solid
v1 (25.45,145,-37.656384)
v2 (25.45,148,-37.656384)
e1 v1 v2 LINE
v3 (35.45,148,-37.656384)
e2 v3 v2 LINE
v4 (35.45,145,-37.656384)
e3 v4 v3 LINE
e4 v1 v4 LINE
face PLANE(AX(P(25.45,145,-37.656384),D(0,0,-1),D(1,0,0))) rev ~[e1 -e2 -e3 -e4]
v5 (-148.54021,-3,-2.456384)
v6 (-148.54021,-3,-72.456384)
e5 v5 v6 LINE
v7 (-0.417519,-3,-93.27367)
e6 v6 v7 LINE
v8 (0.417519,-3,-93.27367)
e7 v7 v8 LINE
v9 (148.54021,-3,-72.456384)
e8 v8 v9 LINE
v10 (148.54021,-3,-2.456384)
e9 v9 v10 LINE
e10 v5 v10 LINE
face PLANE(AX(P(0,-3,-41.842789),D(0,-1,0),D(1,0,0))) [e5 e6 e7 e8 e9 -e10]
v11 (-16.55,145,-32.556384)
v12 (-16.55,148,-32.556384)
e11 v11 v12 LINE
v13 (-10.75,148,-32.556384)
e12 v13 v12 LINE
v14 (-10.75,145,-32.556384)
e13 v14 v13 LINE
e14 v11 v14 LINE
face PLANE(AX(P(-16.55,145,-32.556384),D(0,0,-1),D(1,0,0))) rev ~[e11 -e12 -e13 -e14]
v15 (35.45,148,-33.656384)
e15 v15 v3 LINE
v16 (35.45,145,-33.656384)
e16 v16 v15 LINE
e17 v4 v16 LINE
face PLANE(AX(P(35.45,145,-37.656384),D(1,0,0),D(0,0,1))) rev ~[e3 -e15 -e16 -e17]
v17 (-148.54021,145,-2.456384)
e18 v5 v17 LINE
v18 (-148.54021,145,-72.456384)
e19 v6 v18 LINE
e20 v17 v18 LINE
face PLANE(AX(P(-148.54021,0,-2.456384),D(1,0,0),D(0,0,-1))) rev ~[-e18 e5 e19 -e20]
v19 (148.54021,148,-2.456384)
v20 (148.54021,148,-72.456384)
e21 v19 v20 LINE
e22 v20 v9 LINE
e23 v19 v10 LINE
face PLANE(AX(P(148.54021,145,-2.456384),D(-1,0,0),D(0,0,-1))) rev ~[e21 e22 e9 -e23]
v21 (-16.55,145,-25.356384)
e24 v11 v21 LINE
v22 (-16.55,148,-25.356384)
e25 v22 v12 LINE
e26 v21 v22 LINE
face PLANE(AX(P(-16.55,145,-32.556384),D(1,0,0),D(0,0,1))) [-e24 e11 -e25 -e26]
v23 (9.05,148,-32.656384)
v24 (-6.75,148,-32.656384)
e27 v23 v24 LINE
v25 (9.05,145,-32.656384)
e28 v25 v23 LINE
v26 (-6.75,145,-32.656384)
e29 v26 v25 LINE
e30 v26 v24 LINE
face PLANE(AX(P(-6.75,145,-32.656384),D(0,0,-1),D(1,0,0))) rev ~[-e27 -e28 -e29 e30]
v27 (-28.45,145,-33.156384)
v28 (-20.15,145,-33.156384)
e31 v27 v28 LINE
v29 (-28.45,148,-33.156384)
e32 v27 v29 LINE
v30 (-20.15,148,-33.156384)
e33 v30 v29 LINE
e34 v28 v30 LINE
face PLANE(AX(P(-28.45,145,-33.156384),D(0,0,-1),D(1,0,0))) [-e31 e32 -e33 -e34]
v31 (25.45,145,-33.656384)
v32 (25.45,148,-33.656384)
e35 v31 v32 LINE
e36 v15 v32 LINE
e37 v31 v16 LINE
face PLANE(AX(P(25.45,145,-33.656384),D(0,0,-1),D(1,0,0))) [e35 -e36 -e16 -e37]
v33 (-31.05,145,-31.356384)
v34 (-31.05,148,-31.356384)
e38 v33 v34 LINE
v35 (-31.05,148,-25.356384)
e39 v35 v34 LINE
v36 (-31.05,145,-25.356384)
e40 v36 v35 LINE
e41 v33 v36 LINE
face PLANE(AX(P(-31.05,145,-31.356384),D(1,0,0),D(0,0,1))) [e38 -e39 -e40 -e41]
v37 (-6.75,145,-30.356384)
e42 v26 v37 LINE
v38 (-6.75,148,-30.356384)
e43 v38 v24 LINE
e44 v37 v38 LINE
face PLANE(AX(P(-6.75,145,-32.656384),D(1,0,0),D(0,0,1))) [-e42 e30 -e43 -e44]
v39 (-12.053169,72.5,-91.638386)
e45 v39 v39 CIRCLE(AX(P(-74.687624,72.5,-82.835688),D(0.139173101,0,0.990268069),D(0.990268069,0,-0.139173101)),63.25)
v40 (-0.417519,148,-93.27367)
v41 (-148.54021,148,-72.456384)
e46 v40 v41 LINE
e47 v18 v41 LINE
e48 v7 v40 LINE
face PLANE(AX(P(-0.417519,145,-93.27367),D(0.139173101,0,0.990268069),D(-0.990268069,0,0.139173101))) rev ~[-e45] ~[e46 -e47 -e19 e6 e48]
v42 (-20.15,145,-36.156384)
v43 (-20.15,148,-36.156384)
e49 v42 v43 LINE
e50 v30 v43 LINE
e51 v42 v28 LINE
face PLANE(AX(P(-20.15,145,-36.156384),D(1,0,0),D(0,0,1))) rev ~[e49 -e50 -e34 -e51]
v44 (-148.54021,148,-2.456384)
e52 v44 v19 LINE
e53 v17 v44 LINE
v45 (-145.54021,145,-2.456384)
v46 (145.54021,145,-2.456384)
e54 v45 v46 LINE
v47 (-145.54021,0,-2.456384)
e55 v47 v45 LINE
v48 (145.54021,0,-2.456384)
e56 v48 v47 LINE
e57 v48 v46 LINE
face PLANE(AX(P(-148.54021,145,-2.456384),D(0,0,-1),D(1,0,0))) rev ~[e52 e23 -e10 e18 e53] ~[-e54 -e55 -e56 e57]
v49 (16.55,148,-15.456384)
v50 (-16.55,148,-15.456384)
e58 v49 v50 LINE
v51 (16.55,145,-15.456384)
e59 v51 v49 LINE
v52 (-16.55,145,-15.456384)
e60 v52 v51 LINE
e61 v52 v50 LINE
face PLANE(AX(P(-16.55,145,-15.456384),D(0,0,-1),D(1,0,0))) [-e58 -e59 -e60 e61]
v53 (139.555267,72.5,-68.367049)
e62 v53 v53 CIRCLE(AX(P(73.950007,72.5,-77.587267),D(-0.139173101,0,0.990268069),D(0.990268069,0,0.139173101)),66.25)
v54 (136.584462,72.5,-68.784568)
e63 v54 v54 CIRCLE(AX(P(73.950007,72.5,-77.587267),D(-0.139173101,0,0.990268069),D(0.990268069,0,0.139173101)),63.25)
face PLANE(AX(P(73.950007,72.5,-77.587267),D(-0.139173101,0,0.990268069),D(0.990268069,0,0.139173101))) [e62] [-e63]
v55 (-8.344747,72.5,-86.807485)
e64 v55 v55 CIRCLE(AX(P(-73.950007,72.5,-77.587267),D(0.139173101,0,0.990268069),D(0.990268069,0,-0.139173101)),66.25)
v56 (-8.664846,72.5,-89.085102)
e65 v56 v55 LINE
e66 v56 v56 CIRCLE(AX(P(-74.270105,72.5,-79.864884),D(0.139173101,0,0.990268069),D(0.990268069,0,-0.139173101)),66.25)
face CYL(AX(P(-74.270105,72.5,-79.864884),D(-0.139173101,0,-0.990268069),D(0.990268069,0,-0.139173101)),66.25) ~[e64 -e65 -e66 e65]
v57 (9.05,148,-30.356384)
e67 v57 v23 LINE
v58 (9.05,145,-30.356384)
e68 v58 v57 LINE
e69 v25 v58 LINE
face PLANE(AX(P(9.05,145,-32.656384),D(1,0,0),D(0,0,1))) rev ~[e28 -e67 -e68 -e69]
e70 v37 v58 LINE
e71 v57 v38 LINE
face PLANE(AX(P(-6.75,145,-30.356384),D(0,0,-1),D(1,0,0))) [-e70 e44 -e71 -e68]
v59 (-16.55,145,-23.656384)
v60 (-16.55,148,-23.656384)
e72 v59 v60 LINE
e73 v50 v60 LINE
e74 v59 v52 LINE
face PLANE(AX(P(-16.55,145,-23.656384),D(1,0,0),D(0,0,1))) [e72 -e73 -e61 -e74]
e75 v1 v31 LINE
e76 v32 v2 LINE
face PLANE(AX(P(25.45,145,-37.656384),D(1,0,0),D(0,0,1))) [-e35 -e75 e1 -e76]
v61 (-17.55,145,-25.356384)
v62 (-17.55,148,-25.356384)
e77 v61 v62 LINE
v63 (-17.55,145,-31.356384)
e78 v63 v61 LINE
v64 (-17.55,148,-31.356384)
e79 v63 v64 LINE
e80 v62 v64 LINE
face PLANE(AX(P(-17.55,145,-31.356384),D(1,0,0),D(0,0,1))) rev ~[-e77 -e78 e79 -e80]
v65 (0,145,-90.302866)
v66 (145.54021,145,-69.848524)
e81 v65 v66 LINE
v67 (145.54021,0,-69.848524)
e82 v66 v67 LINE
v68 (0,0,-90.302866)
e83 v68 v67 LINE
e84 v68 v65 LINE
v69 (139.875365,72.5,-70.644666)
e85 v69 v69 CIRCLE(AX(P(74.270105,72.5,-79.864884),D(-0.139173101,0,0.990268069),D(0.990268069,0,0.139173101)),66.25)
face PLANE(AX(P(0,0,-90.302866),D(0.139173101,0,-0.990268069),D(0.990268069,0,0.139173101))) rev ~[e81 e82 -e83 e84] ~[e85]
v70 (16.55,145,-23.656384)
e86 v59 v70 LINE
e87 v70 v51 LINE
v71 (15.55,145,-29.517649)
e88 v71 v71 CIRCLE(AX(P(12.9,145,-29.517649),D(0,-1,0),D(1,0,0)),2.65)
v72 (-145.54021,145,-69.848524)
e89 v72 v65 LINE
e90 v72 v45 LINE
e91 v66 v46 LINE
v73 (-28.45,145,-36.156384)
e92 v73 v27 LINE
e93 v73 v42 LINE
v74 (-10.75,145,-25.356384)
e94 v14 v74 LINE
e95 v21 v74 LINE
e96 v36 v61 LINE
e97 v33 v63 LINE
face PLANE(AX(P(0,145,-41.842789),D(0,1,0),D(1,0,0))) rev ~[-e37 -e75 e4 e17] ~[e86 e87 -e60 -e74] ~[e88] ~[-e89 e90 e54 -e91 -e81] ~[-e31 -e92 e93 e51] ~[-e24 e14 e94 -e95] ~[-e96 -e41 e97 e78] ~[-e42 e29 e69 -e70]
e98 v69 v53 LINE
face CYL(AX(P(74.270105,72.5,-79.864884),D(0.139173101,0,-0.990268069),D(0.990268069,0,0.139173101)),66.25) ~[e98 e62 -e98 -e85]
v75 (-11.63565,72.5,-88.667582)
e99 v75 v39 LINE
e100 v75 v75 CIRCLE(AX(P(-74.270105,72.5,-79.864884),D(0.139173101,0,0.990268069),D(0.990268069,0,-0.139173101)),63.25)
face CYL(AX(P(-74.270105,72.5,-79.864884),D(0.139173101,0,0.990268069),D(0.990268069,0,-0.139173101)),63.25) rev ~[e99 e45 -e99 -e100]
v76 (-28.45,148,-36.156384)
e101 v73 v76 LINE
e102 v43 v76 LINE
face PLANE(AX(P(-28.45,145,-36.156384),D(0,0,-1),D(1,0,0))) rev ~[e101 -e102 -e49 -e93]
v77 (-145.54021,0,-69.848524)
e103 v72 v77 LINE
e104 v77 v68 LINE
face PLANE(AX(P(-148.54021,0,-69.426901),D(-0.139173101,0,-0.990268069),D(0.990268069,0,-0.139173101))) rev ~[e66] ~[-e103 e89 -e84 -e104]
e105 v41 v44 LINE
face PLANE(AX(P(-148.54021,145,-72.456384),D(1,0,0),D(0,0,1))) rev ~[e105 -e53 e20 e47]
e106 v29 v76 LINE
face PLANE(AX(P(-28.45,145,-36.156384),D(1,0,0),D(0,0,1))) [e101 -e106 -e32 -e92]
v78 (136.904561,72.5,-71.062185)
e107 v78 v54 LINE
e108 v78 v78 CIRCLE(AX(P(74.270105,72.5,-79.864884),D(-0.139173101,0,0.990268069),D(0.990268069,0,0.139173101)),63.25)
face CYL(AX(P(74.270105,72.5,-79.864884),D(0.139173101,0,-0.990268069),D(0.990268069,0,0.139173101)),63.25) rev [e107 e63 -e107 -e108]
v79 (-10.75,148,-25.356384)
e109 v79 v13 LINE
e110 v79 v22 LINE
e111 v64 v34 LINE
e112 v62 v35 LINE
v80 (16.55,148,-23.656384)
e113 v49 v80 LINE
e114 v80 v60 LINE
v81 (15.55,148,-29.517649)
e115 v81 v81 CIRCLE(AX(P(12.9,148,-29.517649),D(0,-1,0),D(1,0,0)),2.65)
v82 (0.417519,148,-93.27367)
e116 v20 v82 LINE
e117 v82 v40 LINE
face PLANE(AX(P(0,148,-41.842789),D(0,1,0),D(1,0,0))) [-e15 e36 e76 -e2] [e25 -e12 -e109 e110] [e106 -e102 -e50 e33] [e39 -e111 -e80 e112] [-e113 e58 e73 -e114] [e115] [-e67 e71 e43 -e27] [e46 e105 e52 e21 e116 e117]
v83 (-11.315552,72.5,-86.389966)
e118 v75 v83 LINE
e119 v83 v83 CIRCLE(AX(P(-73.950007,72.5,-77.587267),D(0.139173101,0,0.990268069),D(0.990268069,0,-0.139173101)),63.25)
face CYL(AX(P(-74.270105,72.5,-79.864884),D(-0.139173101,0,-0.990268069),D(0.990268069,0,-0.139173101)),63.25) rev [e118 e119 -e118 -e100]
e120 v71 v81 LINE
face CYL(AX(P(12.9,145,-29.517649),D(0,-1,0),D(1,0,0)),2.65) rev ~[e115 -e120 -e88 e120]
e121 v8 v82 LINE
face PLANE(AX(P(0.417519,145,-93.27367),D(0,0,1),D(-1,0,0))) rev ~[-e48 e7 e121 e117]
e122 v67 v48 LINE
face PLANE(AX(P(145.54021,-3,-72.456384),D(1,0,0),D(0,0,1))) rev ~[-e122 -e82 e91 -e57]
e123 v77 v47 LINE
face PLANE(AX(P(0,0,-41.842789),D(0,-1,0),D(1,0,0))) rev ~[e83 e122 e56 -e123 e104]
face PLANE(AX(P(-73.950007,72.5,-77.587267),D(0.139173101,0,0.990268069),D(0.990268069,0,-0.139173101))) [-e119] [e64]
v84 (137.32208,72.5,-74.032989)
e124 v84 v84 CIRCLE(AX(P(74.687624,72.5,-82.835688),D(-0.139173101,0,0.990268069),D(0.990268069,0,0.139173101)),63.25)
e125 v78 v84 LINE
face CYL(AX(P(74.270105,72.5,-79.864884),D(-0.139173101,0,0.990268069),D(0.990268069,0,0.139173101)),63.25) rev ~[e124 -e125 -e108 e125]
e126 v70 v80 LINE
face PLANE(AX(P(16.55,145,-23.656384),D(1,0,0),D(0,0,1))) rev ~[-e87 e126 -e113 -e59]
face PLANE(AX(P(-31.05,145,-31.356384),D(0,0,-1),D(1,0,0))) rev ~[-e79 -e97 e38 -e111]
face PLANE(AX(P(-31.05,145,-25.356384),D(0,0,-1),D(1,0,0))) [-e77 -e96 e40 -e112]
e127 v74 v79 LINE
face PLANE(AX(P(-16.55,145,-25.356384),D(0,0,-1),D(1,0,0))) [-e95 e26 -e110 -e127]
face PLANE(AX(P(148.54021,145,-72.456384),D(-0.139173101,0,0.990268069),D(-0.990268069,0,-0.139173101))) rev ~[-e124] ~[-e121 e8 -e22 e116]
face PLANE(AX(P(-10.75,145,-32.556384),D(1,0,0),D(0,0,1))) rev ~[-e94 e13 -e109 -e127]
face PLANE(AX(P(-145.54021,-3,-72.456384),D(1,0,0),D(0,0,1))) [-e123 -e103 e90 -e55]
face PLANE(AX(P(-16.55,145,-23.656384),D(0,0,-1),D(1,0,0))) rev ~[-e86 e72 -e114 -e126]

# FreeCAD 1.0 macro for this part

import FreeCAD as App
import Part
import Sketcher
from FreeCAD import Vector
Q = App.Units.Quantity


def add_polygon(sketch, points):
    """Adds a closed chain of lines whose ends are joined by coincident constraints."""
    first, n = sketch.GeometryCount, len(points)
    for a, b in zip(points, points[1:] + points[:1]):
        sketch.addGeometry(Part.LineSegment(App.Vector(*a, 0), App.Vector(*b, 0)), False)
    for i in range(n):
        sketch.addConstraint(Sketcher.Constraint("Coincident", first + i, 2, first + (i + 1) % n, 1))

doc = App.newDocument("Part")
body = doc.addObject("PartDesign::Body", "Body")

sketch1 = body.newObject("Sketcher::SketchObject", "Sketch")
sketch1.AttachmentSupport = (doc.getObject("XZ_Plane"), [""])
sketch1.MapMode = "FlatFace"
add_polygon(sketch1, [(0, -90.302866), (148.54021, -69.426901), (148.54021, -72.456384), (0.417519, -93.27367), (-0.417519, -93.27367), (-148.54021, -72.456384), (-148.54021, -69.426901)])
sketch1.addConstraint([
    Sketcher.Constraint("Vertical", 1),
    Sketcher.Constraint("Horizontal", 3),
    Sketcher.Constraint("Vertical", 5),
    Sketcher.Constraint("Symmetric", 1, 2, 4, 2, -2),
    Sketcher.Constraint("PointOnObject", 6, 2, -2),
    Sketcher.Constraint("Parallel", 0, 2),
    Sketcher.Constraint("Parallel", 4, 6),
    Sketcher.Constraint("Horizontal", 0, 2, 5, 2),
    Sketcher.Constraint("Angle", 0, Q("8 deg")),
    Sketcher.Constraint("Distance", 0, Q("150 mm")),
    Sketcher.Constraint("DistanceX", 3, 2, 3, 1, Q("0.835039 mm")),
    Sketcher.Constraint("DistanceY", 0, 2, -1, 1, Q("69.426901 mm")),
    Sketcher.Constraint("DistanceY", 1, 2, 1, 1, Q("3.029483 mm")),
])
pad1 = body.newObject("PartDesign::Pad", "Pad")
pad1.Profile = sketch1
pad1.Length = 145
pad1.Reversed = True

sketch2 = body.newObject("Sketcher::SketchObject", "Sketch001")
sketch2.Placement = App.Placement(Vector(12.445422, 0, -88.553776), App.Rotation(Vector(0.990268069, 0, 0.139173101), Vector(0, 1.000000001, 0), Vector(-0.139173101, 0, 0.990268069), "ZXY"))
sketch2.addGeometry([
    Part.Circle(Vector(62.43227, 72.5, 0), Vector(0, 0, 1), 66.25),
    Part.Circle(Vector(62.43227, 72.5, 0), Vector(0, 0, 1), 63.25),
], False)
sketch2.addConstraint([
    Sketcher.Constraint("Coincident", 1, 3, 0, 3),
    Sketcher.Constraint("Diameter", 0, Q("132.5 mm")),
    Sketcher.Constraint("Diameter", 1, Q("126.5 mm")),
    Sketcher.Constraint("DistanceY", -1, 1, 0, 3, Q("72.5 mm")),
    Sketcher.Constraint("DistanceX", -1, 1, 0, 3, Q("62.43227 mm")),
])
pad2 = body.newObject("PartDesign::Pad", "Pad001")
pad2.Profile = sketch2
pad2.Length = 2.3

sketch3 = body.newObject("Sketcher::SketchObject", "Sketch002")
sketch3.Placement = App.Placement(Vector(-12.445422, 0, -88.553776), App.Rotation(Vector(0.990268069, 0, -0.139173101), Vector(0, 1.000000001, 0), Vector(0.139173101, 0, 0.990268069), "ZXY"))
sketch3.addGeometry([
    Part.Circle(Vector(-62.43227, 72.5, 0), Vector(0, 0, 1), 66.25),
    Part.Circle(Vector(-62.43227, 72.5, 0), Vector(0, 0, 1), 63.25),
], False)
sketch3.addConstraint([
    Sketcher.Constraint("Coincident", 1, 3, 0, 3),
    Sketcher.Constraint("Diameter", 0, Q("132.5 mm")),
    Sketcher.Constraint("Diameter", 1, Q("126.5 mm")),
    Sketcher.Constraint("DistanceY", -1, 1, 0, 3, Q("72.5 mm")),
    Sketcher.Constraint("DistanceX", 0, 3, -1, 1, Q("62.43227 mm")),
])
pad3 = body.newObject("PartDesign::Pad", "Pad002")
pad3.Profile = sketch3
pad3.Length = 2.3

sketch4 = body.newObject("Sketcher::SketchObject", "Sketch003")
sketch4.Placement = App.Placement(Vector(-12.445422, 0, -88.553776), App.Rotation(Vector(0.990268069, 0, -0.139173101), Vector(0, 1.000000001, 0), Vector(0.139173101, 0, 0.990268069), "ZXY"))
sketch4.addGeometry(Part.Circle(Vector(-62.43227, 72.5, 0), Vector(0, 0, 1), 63.25), False)
sketch4.addConstraint([
    Sketcher.Constraint("Diameter", 0, Q("126.5 mm")),
    Sketcher.Constraint("DistanceY", -1, 1, 0, 3, Q("72.5 mm")),
    Sketcher.Constraint("DistanceX", 0, 3, -1, 1, Q("62.43227 mm")),
])
pocket1 = body.newObject("PartDesign::Pocket", "Pocket")
pocket1.Profile = sketch4
pocket1.Type = "ThroughAll"

sketch5 = body.newObject("Sketcher::SketchObject", "Sketch004")
sketch5.Placement = App.Placement(Vector(12.445422, 0, -88.553776), App.Rotation(Vector(0.990268069, 0, 0.139173101), Vector(0, 1.000000001, 0), Vector(-0.139173101, 0, 0.990268069), "ZXY"))
sketch5.addGeometry(Part.Circle(Vector(62.43227, 72.5, 0), Vector(0, 0, 1), 63.25), False)
sketch5.addConstraint([
    Sketcher.Constraint("Diameter", 0, Q("126.5 mm")),
    Sketcher.Constraint("DistanceY", -1, 1, 0, 3, Q("72.5 mm")),
    Sketcher.Constraint("DistanceX", -1, 1, 0, 3, Q("62.43227 mm")),
])
pocket2 = body.newObject("PartDesign::Pocket", "Pocket001")
pocket2.Profile = sketch5
pocket2.Type = "ThroughAll"

sketch6 = body.newObject("Sketcher::SketchObject", "Sketch005")
sketch6.AttachmentSupport = (doc.getObject("XZ_Plane"), [""])
sketch6.MapMode = "FlatFace"
add_polygon(sketch6, [(-148.54021, -72.456384), (-0.417519, -93.27367), (0.417519, -93.27367), (148.54021, -72.456384), (148.54021, -2.456384), (-148.54021, -2.456384)])
sketch6.addConstraint([
    Sketcher.Constraint("Horizontal", 1),
    Sketcher.Constraint("Vertical", 3),
    Sketcher.Constraint("Horizontal", 4),
    Sketcher.Constraint("Vertical", 5),
    Sketcher.Constraint("Symmetric", 2, 2, 5, 2, -2),
    Sketcher.Constraint("Equal", 0, 2),
    Sketcher.Constraint("DistanceY", 3, 1, 3, 2, Q("70 mm")),
    Sketcher.Constraint("Angle", 0, Q("-8 deg")),
    Sketcher.Constraint("DistanceX", 1, 1, 1, 2, Q("0.835039 mm")),
    Sketcher.Constraint("DistanceX", 4, 2, 4, 1, Q("297.080421 mm")),
    Sketcher.Constraint("DistanceY", 0, 2, -1, 1, Q("93.27367 mm")),
])
pad4 = body.newObject("PartDesign::Pad", "Pad003")
pad4.Profile = sketch6
pad4.Length = 3

sketch7 = body.newObject("Sketcher::SketchObject", "Sketch006")
sketch7.AttachmentSupport = (doc.getObject("XZ_Plane"), [""])
sketch7.MapMode = "FlatFace"
sketch7.AttachmentOffset = App.Placement(Vector(0, 0, 3), App.Rotation())
add_polygon(sketch7, [(-148.54021, -2.456384), (-148.54021, -72.456384), (-145.54021, -72.456384), (-145.54021, -2.456384)])
add_polygon(sketch7, [(145.54021, -2.456384), (145.54021, -72.456384), (148.54021, -72.456384), (148.54021, -2.456384)])
sketch7.addConstraint([
    Sketcher.Constraint("Vertical", 0),
    Sketcher.Constraint("Horizontal", 1),
    Sketcher.Constraint("Vertical", 2),
    Sketcher.Constraint("Horizontal", 3),
    Sketcher.Constraint("Vertical", 4),
    Sketcher.Constraint("Horizontal", 5),
    Sketcher.Constraint("Vertical", 6),
    Sketcher.Constraint("Horizontal", 7),
    Sketcher.Constraint("Symmetric", 1, 2, 4, 2, -2),
    Sketcher.Constraint("Symmetric", 3, 2, 6, 2, -2),
    Sketcher.Constraint("DistanceX", 1, 1, 1, 2, Q("3 mm")),
    Sketcher.Constraint("DistanceY", 0, 2, 0, 1, Q("70 mm")),
    Sketcher.Constraint("DistanceX", 0, 2, -1, 1, Q("148.54021 mm")),
    Sketcher.Constraint("DistanceY", 0, 2, -1, 1, Q("72.456384 mm")),
])
pad5 = body.newObject("PartDesign::Pad", "Pad004")
pad5.Profile = sketch7
pad5.Length = 148
pad5.Reversed = True

sketch8 = body.newObject("Sketcher::SketchObject", "Sketch007")
sketch8.AttachmentSupport = (doc.getObject("XZ_Plane"), [""])
sketch8.MapMode = "FlatFace"
sketch8.AttachmentOffset = App.Placement(Vector(0, 0, -145), App.Rotation())
add_polygon(sketch8, [(148.54021, -72.456384), (0.417519, -93.27367), (-0.417519, -93.27367), (-148.54021, -72.456384), (-148.54021, -2.456384), (148.54021, -2.456384)])
sketch8.addConstraint([
    Sketcher.Constraint("Horizontal", 1),
    Sketcher.Constraint("Vertical", 3),
    Sketcher.Constraint("Horizontal", 4),
    Sketcher.Constraint("Vertical", 5),
    Sketcher.Constraint("Symmetric", 2, 2, 5, 2, -2),
    Sketcher.Constraint("Equal", 0, 2),
    Sketcher.Constraint("DistanceY", 3, 1, 3, 2, Q("70 mm")),
    Sketcher.Constraint("Angle", 0, Q("-172 deg")),
    Sketcher.Constraint("DistanceX", 1, 2, 1, 1, Q("0.835039 mm")),
    Sketcher.Constraint("DistanceX", 4, 1, 4, 2, Q("297.080421 mm")),
    Sketcher.Constraint("DistanceY", 0, 2, -1, 1, Q("93.27367 mm")),
])
pad6 = body.newObject("PartDesign::Pad", "Pad005")
pad6.Profile = sketch8
pad6.Length = 3
pad6.Reversed = True

sketch9 = body.newObject("Sketcher::SketchObject", "Sketch008")
sketch9.AttachmentSupport = (doc.getObject("XZ_Plane"), [""])
sketch9.MapMode = "FlatFace"
sketch9.AttachmentOffset = App.Placement(Vector(0, 0, -145), App.Rotation())
sketch9.addGeometry(Part.Circle(Vector(12.9, -29.517649, 0), Vector(0, 0, 1), 2.65), False)
add_polygon(sketch9, [(-16.55, -15.456384), (-16.55, -23.656384), (16.55, -23.656384), (16.55, -15.456384)])
add_polygon(sketch9, [(-16.55, -25.356384), (-16.55, -32.556384), (-10.75, -32.556384), (-10.75, -25.356384)])
add_polygon(sketch9, [(-6.75, -30.356384), (-6.75, -32.656384), (9.05, -32.656384), (9.05, -30.356384)])
add_polygon(sketch9, [(-31.05, -25.356384), (-31.05, -31.356384), (-17.55, -31.356384), (-17.55, -25.356384)])
add_polygon(sketch9, [(-28.45, -33.156384), (-28.45, -36.156384), (-20.15, -36.156384), (-20.15, -33.156384)])
add_polygon(sketch9, [(25.45, -33.656384), (25.45, -37.656384), (35.45, -37.656384), (35.45, -33.656384)])
sketch9.addConstraint([
    Sketcher.Constraint("Vertical", 1),
    Sketcher.Constraint("Horizontal", 2),
    Sketcher.Constraint("Vertical", 3),
    Sketcher.Constraint("Horizontal", 4),
    Sketcher.Constraint("Vertical", 5),
    Sketcher.Constraint("Horizontal", 6),
    Sketcher.Constraint("Vertical", 7),
    Sketcher.Constraint("Horizontal", 8),
    Sketcher.Constraint("Vertical", 9),
    Sketcher.Constraint("Horizontal", 10),
    Sketcher.Constraint("Vertical", 11),
    Sketcher.Constraint("Horizontal", 12),
    Sketcher.Constraint("Vertical", 13),
    Sketcher.Constraint("Horizontal", 14),
    Sketcher.Constraint("Vertical", 15),
    Sketcher.Constraint("Horizontal", 16),
    Sketcher.Constraint("Vertical", 17),
    Sketcher.Constraint("Horizontal", 18),
    Sketcher.Constraint("Vertical", 19),
    Sketcher.Constraint("Horizontal", 20),
    Sketcher.Constraint("Vertical", 21),
    Sketcher.Constraint("Horizontal", 22),
    Sketcher.Constraint("Vertical", 23),
    Sketcher.Constraint("Horizontal", 24),
    Sketcher.Constraint("Horizontal", 8, 2, 15, 2),
    Sketcher.Constraint("Vertical", 4, 2, 5, 2),
    Sketcher.Constraint("Diameter", 0, Q("5.3 mm")),
    Sketcher.Constraint("DistanceX", 22, 1, 22, 2, Q("10 mm")),
    Sketcher.Constraint("DistanceY", 13, 2, 13, 1, Q("6 mm")),
    Sketcher.Constraint("DistanceY", 17, 2, 17, 1, Q("3 mm")),
    Sketcher.Constraint("DistanceY", 21, 2, 21, 1, Q("4 mm")),
    Sketcher.Constraint("DistanceX", 2, 1, 2, 2, Q("33.1 mm")),
    Sketcher.Constraint("DistanceX", 6, 1, 6, 2, Q("5.8 mm")),
    Sketcher.Constraint("DistanceX", 10, 1, 10, 2, Q("15.8 mm")),
    Sketcher.Constraint("DistanceX", 14, 1, 14, 2, Q("13.5 mm")),
    Sketcher.Constraint("DistanceX", 18, 1, 18, 2, Q("8.3 mm")),
    Sketcher.Constraint("DistanceY", 1, 2, 1, 1, Q("8.2 mm")),
    Sketcher.Constraint("DistanceY", 5, 2, 5, 1, Q("7.2 mm")),
    Sketcher.Constraint("DistanceY", 9, 2, 9, 1, Q("2.3 mm")),
    Sketcher.Constraint("DistanceX", 6, 2, 9, 2, Q("4 mm")),
    Sketcher.Constraint("DistanceY", 9, 2, 1, 2, Q("9 mm")),
    Sketcher.Constraint("DistanceY", 12, 2, 7, 2, Q("5 mm")),
    Sketcher.Constraint("DistanceX", 14, 2, 5, 2, Q("1 mm")),
    Sketcher.Constraint("DistanceY", 21, 2, 2, 2, Q("14 mm")),
    Sketcher.Constraint("DistanceX", -1, 1, 0, 3, Q("12.9 mm")),
    Sketcher.Constraint("DistanceX", 13, 2, 17, 2, Q("2.6 mm")),
    Sketcher.Constraint("DistanceY", 17, 2, 13, 2, Q("4.8 mm")),
    Sketcher.Constraint("DistanceX", 2, 2, 21, 2, Q("8.9 mm")),
    Sketcher.Constraint("DistanceX", 1, 2, -1, 1, Q("16.55 mm")),
    Sketcher.Constraint("DistanceY", 0, 3, -1, 1, Q("29.517649 mm")),
    Sketcher.Constraint("DistanceY", 1, 2, -1, 1, Q("23.656384 mm")),
])
pocket3 = body.newObject("PartDesign::Pocket", "Pocket002")
pocket3.Profile = sketch9
pocket3.Length = 10

doc.recompute()
